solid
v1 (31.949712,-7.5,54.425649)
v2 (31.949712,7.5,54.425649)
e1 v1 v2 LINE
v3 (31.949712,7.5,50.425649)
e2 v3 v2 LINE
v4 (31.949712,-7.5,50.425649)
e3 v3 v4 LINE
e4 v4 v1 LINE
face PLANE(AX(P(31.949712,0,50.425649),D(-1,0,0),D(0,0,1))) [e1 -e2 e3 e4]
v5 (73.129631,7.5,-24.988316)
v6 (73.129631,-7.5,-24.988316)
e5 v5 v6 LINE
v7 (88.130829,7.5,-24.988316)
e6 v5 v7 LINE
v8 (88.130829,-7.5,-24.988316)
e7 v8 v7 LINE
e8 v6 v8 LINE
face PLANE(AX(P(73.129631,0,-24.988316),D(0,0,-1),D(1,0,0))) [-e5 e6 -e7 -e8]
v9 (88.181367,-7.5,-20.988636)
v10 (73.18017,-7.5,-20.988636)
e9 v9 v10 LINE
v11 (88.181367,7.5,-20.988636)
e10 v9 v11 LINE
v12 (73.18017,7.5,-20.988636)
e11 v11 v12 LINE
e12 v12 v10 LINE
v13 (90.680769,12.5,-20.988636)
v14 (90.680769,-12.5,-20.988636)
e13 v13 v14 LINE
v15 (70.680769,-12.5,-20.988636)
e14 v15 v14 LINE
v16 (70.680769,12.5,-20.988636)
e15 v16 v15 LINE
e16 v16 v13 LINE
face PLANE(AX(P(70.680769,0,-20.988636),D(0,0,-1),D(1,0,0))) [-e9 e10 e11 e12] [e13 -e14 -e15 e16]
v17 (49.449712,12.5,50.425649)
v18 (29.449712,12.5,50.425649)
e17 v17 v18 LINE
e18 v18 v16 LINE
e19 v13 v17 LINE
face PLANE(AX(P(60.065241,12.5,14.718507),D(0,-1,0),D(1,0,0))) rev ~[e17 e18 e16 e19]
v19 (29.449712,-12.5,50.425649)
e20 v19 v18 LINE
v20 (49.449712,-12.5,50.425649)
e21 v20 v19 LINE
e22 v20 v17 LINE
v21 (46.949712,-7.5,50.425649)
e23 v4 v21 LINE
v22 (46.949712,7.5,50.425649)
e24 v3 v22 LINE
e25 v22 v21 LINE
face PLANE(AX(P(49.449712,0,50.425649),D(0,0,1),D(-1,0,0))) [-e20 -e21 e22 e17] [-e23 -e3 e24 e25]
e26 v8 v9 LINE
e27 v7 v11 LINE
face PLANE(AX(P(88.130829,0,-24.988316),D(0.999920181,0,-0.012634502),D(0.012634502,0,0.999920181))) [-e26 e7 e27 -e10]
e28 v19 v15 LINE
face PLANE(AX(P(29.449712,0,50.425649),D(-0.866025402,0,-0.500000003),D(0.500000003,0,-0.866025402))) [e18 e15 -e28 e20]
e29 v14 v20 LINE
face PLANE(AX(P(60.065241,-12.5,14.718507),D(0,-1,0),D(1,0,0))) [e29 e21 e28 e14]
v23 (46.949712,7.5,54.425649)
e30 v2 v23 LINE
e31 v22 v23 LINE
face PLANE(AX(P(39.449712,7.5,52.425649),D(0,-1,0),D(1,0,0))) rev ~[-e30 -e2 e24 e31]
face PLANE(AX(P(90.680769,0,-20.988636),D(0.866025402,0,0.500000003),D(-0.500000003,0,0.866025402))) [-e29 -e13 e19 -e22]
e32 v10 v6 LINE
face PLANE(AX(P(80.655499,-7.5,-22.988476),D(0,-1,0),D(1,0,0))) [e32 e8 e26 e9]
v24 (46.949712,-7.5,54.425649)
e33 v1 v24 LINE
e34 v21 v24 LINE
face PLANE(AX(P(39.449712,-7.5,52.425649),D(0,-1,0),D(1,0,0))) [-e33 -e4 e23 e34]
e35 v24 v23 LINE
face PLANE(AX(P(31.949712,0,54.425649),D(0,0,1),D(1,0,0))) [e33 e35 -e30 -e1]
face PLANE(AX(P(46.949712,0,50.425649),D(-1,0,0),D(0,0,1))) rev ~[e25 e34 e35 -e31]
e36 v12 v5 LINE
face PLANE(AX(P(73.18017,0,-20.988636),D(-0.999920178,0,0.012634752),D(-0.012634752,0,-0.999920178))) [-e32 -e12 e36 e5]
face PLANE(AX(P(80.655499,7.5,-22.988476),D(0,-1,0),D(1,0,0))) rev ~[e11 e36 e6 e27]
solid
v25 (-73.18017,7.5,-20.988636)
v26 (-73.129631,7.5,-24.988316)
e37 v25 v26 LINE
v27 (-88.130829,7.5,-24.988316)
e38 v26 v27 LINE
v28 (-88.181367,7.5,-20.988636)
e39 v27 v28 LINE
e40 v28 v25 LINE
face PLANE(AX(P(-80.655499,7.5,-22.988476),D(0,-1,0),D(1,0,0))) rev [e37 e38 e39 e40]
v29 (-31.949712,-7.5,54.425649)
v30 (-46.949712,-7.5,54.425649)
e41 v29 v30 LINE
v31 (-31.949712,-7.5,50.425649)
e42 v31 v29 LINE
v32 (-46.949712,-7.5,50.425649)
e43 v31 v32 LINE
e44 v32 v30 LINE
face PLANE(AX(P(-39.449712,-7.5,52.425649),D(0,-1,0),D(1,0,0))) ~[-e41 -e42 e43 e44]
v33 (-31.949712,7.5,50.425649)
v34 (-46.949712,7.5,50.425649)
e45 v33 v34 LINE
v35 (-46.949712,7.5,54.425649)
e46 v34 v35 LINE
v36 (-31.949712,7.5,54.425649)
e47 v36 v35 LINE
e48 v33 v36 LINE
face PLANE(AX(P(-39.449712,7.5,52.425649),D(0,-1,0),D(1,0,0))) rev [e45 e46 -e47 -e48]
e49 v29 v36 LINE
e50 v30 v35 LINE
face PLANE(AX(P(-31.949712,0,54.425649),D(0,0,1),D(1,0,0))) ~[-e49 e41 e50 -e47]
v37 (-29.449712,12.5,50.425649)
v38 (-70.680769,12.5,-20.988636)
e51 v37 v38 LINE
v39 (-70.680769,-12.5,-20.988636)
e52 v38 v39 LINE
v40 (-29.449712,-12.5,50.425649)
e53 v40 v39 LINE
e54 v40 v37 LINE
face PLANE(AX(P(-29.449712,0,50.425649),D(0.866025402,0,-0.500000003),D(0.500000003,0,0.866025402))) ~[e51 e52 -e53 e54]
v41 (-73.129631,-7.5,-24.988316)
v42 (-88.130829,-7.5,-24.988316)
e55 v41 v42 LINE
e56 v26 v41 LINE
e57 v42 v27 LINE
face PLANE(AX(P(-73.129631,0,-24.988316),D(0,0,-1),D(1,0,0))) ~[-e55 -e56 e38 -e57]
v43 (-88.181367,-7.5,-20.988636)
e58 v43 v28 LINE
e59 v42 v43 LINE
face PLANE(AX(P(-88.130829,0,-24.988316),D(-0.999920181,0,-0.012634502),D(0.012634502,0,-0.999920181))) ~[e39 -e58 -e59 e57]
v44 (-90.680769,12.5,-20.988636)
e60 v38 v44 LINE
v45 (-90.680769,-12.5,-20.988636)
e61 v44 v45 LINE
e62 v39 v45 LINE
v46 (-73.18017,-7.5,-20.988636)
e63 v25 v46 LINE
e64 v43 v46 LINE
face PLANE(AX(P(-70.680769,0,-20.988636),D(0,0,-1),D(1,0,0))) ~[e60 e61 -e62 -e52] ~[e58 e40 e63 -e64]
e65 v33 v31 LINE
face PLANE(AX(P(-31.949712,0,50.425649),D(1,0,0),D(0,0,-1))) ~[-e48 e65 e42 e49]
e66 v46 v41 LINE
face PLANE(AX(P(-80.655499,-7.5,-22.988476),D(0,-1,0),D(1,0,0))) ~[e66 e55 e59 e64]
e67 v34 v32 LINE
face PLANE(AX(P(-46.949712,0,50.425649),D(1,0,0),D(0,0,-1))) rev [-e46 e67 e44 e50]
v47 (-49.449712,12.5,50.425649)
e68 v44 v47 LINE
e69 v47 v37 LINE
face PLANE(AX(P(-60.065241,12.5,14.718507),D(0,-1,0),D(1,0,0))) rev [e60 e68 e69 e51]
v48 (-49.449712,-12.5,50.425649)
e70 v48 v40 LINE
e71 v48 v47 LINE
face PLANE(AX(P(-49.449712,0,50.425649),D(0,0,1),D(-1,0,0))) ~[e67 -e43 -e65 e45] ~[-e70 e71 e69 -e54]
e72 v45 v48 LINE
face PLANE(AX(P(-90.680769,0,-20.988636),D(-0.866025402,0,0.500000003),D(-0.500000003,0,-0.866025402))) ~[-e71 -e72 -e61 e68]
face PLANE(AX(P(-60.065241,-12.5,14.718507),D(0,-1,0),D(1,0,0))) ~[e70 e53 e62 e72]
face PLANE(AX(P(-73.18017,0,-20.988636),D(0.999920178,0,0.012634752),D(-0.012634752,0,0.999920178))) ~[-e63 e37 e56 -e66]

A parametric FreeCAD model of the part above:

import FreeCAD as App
import Part
import Sketcher
from FreeCAD import Vector
Q = App.Units.Quantity


def add_polygon(sketch, points):
    """Adds a closed chain of lines whose ends are joined by coincident constraints."""
    first, n = sketch.GeometryCount, len(points)
    for a, b in zip(points, points[1:] + points[:1]):
        sketch.addGeometry(Part.LineSegment(App.Vector(*a, 0), App.Vector(*b, 0)), False)
    for i in range(n):
        sketch.addConstraint(Sketcher.Constraint("Coincident", first + i, 2, first + (i + 1) % n, 1))

doc = App.newDocument("Part")
params = doc.addObject("Spreadsheet::Sheet", "Params")
for row, (alias, value) in enumerate([
    ("sketch1_width", "20 mm"),
    ("pad1_length", "25 mm"),
    ("sketch2_width", "15 mm"),
    ("sketch2_height", "4 mm"),
    ("sketch2_length", "3.999999 mm"),
    ("pad2_length", "15 mm"),
], start=1):
    params.set(f"A{row}", alias)
    params.set(f"B{row}", "=" + value)
    params.setAlias(f"B{row}", alias)

body = doc.addObject("PartDesign::Body", "Body")

sketch1 = body.newObject("Sketcher::SketchObject", "Sketch")
sketch1.AttachmentSupport = (doc.getObject("XZ_Plane"), [""])
sketch1.MapMode = "FlatFace"
add_polygon(sketch1, [(29, 50), (71, -21), (91, -21), (49, 50)])
sketch1.addConstraint([
    Sketcher.Constraint("Horizontal", 1),
    Sketcher.Constraint("Horizontal", 3),
    Sketcher.Constraint("Parallel", 0, 2),
    Sketcher.Constraint("DistanceX", 1, 1, 1, 2, Q("20 mm")),
    Sketcher.Constraint("Angle", 0, Q("-60 deg")),
    Sketcher.Constraint("DistanceX", -1, 1, 0, 2, Q("70.680769 mm")),
    Sketcher.Constraint("DistanceX", -1, 1, 2, 2, Q("49.449712 mm")),
    Sketcher.Constraint("DistanceY", -1, 1, 2, 2, Q("50.425649 mm")),
])
sketch1.setExpression("Constraints[7]", "Params.sketch1_width")
pad1 = body.newObject("PartDesign::Pad", "Pad")
pad1.Profile = sketch1
pad1.setExpression("Length", "Params.pad1_length")
pad1.Midplane = True

sketch2 = body.newObject("Sketcher::SketchObject", "Sketch001")
sketch2.AttachmentSupport = (doc.getObject("XZ_Plane"), [""])
sketch2.MapMode = "FlatFace"
add_polygon(sketch2, [(31.9, 54.4), (31.9, 50.4), (46.9, 50.4), (46.9, 54.4)])
add_polygon(sketch2, [(88.2, -21), (73.2, -21), (73.1, -25), (88.1, -25)])
sketch2.addConstraint([
    Sketcher.Constraint("Vertical", 0),
    Sketcher.Constraint("Horizontal", 1),
    Sketcher.Constraint("Vertical", 2),
    Sketcher.Constraint("Horizontal", 3),
    Sketcher.Constraint("Horizontal", 4),
    Sketcher.Constraint("Horizontal", 6),
    Sketcher.Constraint("Parallel", 5, 7),
    Sketcher.Constraint("DistanceX", 1, 1, 1, 2, Q("15 mm")),
    Sketcher.Constraint("DistanceY", 0, 2, 0, 1, Q("4 mm")),
    Sketcher.Constraint("Distance", 5, Q("3.999999 mm")),
    Sketcher.Constraint("DistanceX", 6, 1, 6, 2, Q("15.001198 mm")),
    Sketcher.Constraint("DistanceY", -1, 1, 0, 2, Q("50.425649 mm")),
    Sketcher.Constraint("DistanceX", -1, 1, 1, 2, Q("46.949712 mm")),
    Sketcher.Constraint("DistanceX", -1, 1, 4, 2, Q("73.18017 mm")),
    Sketcher.Constraint("DistanceX", -1, 1, 5, 2, Q("73.129631 mm")),
    Sketcher.Constraint("DistanceY", 4, 2, -1, 1, Q("20.988636 mm")),
])
sketch2.setExpression("Constraints[15]", "Params.sketch2_width")
sketch2.setExpression("Constraints[16]", "Params.sketch2_height")
sketch2.setExpression("Constraints[17]", "Params.sketch2_length")
pad2 = body.newObject("PartDesign::Pad", "Pad001")
pad2.Profile = sketch2
pad2.setExpression("Length", "Params.pad2_length")
pad2.Midplane = True
body2 = doc.addObject("PartDesign::Body", "Body001")
doc.recompute()

mirroring = doc.addObject("Part::Mirroring", "Mirroring")
mirroring.Source = body
mirroring.Base = Vector(0, 0, 0)
mirroring.Normal = Vector(1, 0, 0)
body2.BaseFeature = mirroring
doc.recompute()
mirroring.Visibility = False

doc.recompute()
